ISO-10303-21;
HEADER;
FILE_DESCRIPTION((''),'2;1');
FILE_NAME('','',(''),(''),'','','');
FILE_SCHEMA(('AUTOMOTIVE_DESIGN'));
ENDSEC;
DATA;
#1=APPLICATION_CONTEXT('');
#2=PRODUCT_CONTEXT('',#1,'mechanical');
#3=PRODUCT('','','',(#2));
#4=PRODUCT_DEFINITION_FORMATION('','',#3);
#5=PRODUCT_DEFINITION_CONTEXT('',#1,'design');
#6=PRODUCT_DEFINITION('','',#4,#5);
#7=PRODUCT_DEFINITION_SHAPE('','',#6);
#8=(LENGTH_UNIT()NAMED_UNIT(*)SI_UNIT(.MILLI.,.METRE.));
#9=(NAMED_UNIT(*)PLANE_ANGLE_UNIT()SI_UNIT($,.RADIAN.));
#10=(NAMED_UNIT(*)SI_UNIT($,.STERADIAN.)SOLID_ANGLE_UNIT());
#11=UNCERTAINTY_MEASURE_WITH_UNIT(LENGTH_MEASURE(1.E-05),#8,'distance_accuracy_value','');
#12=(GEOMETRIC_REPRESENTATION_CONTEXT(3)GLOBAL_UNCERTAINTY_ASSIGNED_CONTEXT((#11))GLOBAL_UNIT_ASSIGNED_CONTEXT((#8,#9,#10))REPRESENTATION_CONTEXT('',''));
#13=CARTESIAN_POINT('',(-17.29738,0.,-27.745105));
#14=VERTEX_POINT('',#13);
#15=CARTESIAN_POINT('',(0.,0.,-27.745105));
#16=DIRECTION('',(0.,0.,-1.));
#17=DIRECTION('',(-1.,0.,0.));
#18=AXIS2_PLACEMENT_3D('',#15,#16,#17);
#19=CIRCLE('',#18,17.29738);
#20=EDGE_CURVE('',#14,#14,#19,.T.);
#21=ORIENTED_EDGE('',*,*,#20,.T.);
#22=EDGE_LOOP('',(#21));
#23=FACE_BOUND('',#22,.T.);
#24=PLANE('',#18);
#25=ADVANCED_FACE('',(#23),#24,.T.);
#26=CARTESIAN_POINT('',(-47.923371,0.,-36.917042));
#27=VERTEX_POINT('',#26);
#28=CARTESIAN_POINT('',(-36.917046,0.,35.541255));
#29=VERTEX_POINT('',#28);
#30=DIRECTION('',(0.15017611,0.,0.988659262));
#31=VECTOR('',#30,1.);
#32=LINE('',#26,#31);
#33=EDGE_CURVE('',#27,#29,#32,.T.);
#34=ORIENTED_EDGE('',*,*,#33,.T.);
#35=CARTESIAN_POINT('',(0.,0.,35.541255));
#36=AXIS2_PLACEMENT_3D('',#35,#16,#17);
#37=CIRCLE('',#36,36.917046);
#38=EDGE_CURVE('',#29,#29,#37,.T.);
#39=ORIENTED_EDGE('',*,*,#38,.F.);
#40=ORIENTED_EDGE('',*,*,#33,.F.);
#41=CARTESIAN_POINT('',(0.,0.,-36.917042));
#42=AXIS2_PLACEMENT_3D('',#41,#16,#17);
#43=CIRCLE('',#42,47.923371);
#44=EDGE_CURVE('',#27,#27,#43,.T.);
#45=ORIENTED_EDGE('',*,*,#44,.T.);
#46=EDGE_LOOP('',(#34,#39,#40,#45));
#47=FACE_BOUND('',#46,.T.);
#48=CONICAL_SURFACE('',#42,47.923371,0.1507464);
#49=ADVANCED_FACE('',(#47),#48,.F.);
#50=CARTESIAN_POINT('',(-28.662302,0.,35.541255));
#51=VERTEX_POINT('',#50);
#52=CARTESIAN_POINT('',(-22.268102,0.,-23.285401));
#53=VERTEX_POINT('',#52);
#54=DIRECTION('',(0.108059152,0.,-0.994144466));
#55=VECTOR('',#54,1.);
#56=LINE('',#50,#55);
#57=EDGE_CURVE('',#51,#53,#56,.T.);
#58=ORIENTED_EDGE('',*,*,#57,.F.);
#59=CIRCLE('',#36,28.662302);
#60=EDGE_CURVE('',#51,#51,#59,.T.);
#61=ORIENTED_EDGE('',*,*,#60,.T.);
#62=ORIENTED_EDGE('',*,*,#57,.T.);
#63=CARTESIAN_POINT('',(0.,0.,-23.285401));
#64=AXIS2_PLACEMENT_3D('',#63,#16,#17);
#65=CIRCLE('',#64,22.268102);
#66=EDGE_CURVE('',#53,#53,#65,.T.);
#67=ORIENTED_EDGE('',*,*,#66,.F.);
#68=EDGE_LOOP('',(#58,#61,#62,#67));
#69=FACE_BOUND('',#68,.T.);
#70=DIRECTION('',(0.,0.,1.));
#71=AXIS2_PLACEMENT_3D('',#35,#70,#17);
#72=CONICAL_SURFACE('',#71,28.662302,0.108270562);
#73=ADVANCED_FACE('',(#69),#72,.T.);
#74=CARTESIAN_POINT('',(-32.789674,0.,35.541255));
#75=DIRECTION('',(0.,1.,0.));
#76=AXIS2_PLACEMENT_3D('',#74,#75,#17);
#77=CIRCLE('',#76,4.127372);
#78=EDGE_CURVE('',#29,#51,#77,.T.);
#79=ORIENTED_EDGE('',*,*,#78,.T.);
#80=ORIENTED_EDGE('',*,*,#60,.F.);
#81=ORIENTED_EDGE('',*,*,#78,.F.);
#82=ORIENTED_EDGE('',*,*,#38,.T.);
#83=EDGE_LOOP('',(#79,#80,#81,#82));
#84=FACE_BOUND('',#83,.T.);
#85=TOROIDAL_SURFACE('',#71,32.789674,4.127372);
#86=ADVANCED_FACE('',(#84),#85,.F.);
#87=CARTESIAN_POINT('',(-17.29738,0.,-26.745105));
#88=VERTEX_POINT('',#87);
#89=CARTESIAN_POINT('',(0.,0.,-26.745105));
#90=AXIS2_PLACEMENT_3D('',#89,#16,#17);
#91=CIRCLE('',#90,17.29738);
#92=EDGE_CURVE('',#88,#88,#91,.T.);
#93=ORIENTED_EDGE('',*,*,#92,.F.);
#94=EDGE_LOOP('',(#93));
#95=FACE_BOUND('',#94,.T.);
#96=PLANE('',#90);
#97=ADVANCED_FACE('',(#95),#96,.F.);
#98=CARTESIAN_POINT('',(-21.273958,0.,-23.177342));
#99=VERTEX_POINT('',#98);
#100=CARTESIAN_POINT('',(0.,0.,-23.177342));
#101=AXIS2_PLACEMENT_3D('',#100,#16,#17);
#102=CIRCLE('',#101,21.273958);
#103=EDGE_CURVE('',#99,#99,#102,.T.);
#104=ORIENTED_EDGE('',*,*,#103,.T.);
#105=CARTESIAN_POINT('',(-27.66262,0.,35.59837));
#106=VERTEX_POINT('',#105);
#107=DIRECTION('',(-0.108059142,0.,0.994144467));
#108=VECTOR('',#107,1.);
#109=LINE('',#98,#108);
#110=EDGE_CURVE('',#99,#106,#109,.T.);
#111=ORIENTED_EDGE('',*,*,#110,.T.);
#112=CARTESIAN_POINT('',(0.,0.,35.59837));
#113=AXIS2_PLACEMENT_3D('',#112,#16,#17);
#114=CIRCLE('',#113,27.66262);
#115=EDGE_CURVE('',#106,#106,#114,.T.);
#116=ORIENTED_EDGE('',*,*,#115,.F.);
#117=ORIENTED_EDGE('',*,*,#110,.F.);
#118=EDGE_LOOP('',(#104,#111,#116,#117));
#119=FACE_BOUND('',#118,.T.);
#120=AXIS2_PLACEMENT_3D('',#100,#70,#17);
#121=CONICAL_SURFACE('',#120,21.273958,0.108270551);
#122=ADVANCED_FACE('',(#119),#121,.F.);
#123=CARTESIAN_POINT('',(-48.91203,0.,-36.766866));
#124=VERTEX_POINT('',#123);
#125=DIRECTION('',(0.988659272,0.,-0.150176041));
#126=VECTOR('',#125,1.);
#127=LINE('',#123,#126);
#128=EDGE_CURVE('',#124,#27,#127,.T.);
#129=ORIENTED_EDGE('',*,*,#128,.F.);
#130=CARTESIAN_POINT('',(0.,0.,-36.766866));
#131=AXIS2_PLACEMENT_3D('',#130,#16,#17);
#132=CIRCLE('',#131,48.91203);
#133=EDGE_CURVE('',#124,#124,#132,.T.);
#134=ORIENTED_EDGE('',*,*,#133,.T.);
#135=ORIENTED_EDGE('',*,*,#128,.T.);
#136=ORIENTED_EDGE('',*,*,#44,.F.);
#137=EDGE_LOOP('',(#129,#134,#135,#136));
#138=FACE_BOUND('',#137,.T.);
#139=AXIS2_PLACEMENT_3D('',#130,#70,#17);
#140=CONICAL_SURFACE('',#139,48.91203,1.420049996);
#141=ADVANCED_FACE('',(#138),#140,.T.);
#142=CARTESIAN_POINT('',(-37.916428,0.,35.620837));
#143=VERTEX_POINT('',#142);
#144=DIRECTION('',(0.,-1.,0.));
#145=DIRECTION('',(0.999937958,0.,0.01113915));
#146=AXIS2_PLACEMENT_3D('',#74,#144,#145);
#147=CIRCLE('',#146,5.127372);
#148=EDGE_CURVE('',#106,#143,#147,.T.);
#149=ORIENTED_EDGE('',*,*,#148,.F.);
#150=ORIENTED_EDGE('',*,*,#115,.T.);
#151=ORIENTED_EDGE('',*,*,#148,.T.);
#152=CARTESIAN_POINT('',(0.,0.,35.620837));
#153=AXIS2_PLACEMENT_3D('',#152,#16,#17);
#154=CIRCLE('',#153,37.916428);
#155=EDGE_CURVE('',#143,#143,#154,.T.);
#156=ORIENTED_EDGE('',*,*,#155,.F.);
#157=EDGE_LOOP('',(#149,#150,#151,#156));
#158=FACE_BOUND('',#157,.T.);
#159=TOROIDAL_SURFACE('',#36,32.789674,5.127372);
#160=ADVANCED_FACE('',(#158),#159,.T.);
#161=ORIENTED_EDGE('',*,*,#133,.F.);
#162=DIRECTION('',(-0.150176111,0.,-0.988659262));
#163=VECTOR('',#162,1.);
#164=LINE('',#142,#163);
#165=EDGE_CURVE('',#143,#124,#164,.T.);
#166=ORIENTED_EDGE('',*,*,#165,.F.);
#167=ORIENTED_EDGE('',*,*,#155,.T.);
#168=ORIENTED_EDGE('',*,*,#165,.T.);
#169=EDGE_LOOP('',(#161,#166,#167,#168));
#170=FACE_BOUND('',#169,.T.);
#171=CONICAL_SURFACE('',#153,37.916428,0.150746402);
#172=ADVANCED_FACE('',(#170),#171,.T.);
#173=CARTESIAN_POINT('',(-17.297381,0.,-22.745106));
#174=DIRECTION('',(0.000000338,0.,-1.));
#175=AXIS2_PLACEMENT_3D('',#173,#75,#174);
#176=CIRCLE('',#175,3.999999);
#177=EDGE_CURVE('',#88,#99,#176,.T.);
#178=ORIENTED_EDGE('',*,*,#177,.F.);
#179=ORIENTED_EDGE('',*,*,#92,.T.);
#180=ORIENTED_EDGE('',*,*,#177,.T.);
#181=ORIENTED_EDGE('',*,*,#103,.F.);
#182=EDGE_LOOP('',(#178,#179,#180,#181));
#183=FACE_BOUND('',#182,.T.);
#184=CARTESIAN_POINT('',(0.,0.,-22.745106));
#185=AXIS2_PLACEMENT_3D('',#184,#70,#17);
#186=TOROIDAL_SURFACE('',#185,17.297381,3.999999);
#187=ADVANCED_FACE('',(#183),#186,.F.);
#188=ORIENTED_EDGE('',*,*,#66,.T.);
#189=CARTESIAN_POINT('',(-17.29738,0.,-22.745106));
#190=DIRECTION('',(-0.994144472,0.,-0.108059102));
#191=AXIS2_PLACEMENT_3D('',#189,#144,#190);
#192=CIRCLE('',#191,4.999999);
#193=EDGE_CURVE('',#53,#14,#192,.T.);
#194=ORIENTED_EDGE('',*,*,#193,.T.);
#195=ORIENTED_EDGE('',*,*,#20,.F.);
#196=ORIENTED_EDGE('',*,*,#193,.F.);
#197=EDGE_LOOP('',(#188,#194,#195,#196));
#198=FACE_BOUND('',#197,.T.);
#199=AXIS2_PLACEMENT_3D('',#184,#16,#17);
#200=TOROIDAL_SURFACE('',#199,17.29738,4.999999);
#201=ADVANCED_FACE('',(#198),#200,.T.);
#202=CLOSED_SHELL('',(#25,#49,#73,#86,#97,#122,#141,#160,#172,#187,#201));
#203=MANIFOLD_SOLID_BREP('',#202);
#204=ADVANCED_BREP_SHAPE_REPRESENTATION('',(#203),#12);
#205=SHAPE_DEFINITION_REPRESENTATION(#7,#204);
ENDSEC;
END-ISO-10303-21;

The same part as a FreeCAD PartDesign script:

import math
import FreeCAD as App
import Part
import Sketcher

doc = App.newDocument("Part")
body = doc.addObject("PartDesign::Body", "Body")

# Sketch on XZ plane
sketch1 = doc.addObject("Sketcher::SketchObject", "Sketch")
body.addObject(sketch1)
sketch1.AttachmentSupport = (doc.XZ_Plane, [""])
sketch1.MapMode = "FlatFace"
sketch1.addGeometry([
    Part.LineSegment(App.Vector(-17.3, -27.7, 0), App.Vector(0, -27.7, 0)),  # 0
    Part.LineSegment(App.Vector(0, -27.7, 0), App.Vector(0, -26.7, 0)),  # 1
    Part.LineSegment(App.Vector(0, -26.7, 0), App.Vector(-17.3, -26.7, 0)),  # 2
    Part.ArcOfCircle(Part.Circle(App.Vector(-17.3, -22.7, 0), App.Vector(0, 0, 1), 4), math.radians(-174), math.radians(-90)),  # 3
    Part.LineSegment(App.Vector(-21.3, -23.2, 0), App.Vector(-27.7, 35.6, 0)),  # 4
    Part.ArcOfCircle(Part.Circle(App.Vector(-32.8, 35.5, 0), App.Vector(0, 0, 1), 5.1), math.radians(1), math.radians(179)),  # 5
    Part.LineSegment(App.Vector(-37.9, 35.6, 0), App.Vector(-48.9, -36.8, 0)),  # 6
    Part.LineSegment(App.Vector(-48.9, -36.8, 0), App.Vector(-47.9, -36.9, 0)),  # 7
    Part.LineSegment(App.Vector(-47.9, -36.9, 0), App.Vector(-36.9, 35.5, 0)),  # 8
    Part.ArcOfCircle(Part.Circle(App.Vector(-32.8, 35.5, 0), App.Vector(0, 0, 1), 4.1), math.radians(0), math.radians(180)),  # 9
    Part.LineSegment(App.Vector(-28.7, 35.5, 0), App.Vector(-22.3, -23.3, 0)),  # 10
    Part.ArcOfCircle(Part.Circle(App.Vector(-17.3, -22.7, 0), App.Vector(0, 0, 1), 5), math.radians(-174), math.radians(-90)),  # 11
], False)
sketch1.addConstraint([
    Sketcher.Constraint("Coincident", 0, 2, 1, 1),
    Sketcher.Constraint("Coincident", 1, 2, 2, 1),
    Sketcher.Constraint("Tangent", 2, 2, 3, 2),
    Sketcher.Constraint("Tangent", 3, 1, 4, 1),
    Sketcher.Constraint("Coincident", 4, 2, 5, 1),
    Sketcher.Constraint("Coincident", 5, 2, 6, 1),
    Sketcher.Constraint("Coincident", 6, 2, 7, 1),
    Sketcher.Constraint("Coincident", 7, 2, 8, 1),
    Sketcher.Constraint("Coincident", 8, 2, 9, 2),
    Sketcher.Constraint("Coincident", 9, 1, 10, 1),
    Sketcher.Constraint("Tangent", 10, 2, 11, 1),
    Sketcher.Constraint("Tangent", 11, 2, 0, 1),
    Sketcher.Constraint("Horizontal", 0),
    Sketcher.Constraint("Vertical", 1),
    Sketcher.Constraint("Horizontal", 2),
    Sketcher.Constraint("Coincident", 9, 3, 5, 3),
    Sketcher.Constraint("Coincident", 11, 3, 3, 3),
    Sketcher.Constraint("PointOnObject", 0, 2, -2),
    Sketcher.Constraint("Perpendicular", 6, 7),
    Sketcher.Constraint("Perpendicular", 7, 8),
    Sketcher.Constraint("Parallel", 4, 10),
    Sketcher.Constraint("Horizontal", 9, 3, 8, 2),
    Sketcher.Constraint("Horizontal", 8, 2, 9, 1),
    Sketcher.Constraint("Radius", 3, 3.999999),
    Sketcher.Constraint("Radius", 11, 4.999999),
    Sketcher.Constraint("Distance", 7, 1.0),
    Sketcher.Constraint("Radius", 5, 5.127372),
    Sketcher.Constraint("Radius", 9, 4.127372),
    Sketcher.Constraint("DistanceX", 0, 1, 0, 2, 17.29738),
    Sketcher.Constraint("DistanceX", 9, 1, -1, 1, 28.662302),
    Sketcher.Constraint("DistanceY", 10, 2, -1, 1, 23.285401),
    Sketcher.Constraint("DistanceY", 7, 2, 3, 1, 13.7397),
    Sketcher.Constraint("Distance", 6, 73.21805),
    Sketcher.Constraint("DistanceY", -1, 1, 4, 2, 35.59837),
])
revolution = doc.addObject("PartDesign::Revolution", "Revolution")
body.addObject(revolution)
revolution.Profile = sketch1
revolution.ReferenceAxis = (sketch1, ["V_Axis"])
revolution.Angle = 360

doc.recompute()
